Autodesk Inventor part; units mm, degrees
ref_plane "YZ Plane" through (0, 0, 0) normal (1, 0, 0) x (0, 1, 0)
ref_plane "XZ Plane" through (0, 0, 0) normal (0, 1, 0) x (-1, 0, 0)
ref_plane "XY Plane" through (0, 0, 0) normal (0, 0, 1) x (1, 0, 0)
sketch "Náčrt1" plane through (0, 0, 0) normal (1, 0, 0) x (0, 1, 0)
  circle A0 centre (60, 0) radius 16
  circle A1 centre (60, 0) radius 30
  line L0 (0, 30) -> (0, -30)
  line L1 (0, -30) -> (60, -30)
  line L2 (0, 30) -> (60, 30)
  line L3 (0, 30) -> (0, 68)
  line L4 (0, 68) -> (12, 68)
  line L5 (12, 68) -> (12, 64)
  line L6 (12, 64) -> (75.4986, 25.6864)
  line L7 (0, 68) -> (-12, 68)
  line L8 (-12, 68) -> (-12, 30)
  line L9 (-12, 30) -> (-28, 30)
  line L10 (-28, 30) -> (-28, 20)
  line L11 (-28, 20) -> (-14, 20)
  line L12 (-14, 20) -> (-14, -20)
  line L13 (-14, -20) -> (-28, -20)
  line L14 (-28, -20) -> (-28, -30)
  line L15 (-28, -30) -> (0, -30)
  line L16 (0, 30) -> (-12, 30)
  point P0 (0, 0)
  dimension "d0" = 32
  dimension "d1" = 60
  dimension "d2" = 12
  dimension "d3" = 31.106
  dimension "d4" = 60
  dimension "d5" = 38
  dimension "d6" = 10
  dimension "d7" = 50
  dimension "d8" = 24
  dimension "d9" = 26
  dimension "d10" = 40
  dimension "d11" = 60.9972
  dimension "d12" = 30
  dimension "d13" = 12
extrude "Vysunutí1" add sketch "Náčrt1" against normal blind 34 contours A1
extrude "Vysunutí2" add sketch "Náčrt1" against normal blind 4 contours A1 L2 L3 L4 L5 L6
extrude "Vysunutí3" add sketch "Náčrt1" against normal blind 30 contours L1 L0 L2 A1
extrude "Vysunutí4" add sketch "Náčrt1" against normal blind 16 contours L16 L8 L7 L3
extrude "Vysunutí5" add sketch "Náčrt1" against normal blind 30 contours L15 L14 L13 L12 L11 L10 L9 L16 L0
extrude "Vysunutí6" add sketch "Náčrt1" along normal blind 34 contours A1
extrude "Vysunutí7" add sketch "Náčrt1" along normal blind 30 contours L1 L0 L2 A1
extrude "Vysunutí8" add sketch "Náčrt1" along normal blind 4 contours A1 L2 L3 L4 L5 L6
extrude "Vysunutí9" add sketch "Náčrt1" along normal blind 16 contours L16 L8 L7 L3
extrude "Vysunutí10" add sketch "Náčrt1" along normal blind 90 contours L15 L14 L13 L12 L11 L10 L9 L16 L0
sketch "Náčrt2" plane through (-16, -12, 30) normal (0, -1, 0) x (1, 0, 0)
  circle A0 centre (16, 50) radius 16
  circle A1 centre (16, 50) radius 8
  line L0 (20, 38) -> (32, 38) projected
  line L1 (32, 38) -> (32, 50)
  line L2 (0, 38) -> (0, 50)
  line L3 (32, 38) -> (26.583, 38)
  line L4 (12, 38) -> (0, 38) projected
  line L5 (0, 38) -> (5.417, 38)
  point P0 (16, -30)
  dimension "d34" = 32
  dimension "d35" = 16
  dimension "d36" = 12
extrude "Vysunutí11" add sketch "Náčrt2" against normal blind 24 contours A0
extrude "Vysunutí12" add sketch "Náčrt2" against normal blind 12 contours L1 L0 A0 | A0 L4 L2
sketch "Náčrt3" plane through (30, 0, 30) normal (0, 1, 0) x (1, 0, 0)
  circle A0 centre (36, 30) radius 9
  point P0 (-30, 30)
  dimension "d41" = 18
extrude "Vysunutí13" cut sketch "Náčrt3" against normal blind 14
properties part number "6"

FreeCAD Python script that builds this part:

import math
import FreeCAD as App
import Part
import Sketcher
Q = App.Units.Quantity

doc = App.newDocument("Part")
params = doc.addObject("Spreadsheet::Sheet", "Params")
for row, (alias, value) in enumerate([
    ("sketch1_diameter", "60 mm"),
    ("sketch1_diameter2", "32 mm"),
    ("pad1_length", "34 mm"),
    ("sketch2_radius", "30 mm"),
    ("sketch2_width", "12 mm"),
    ("sketch2_width2", "60 mm"),
    ("sketch2_height", "38 mm"),
    ("sketch2_height2", "4 mm"),
    ("pad2_length", "4 mm"),
    ("sketch3_radius", "30 mm"),
    ("pad3_length", "30 mm"),
    ("sketch4_width", "12 mm"),
    ("sketch4_height", "38 mm"),
    ("pad4_length", "16 mm"),
    ("sketch5_height", "60 mm"),
    ("sketch5_height2", "10 mm"),
    ("sketch5_width", "28 mm"),
    ("sketch5_width2", "14 mm"),
    ("pad5_length", "30 mm"),
    ("sketch6_diameter", "60 mm"),
    ("sketch6_diameter2", "32 mm"),
    ("pad6_length", "34 mm"),
    ("sketch7_radius", "30 mm"),
    ("pad7_length", "30 mm"),
    ("sketch8_radius", "30 mm"),
    ("sketch8_width", "12 mm"),
    ("sketch8_width2", "60 mm"),
    ("sketch8_height", "38 mm"),
    ("sketch8_height2", "4 mm"),
    ("pad8_length", "4 mm"),
    ("sketch9_width", "12 mm"),
    ("sketch9_height", "38 mm"),
    ("pad9_length", "16 mm"),
    ("sketch10_height", "60 mm"),
    ("sketch10_height2", "10 mm"),
    ("sketch10_width", "28 mm"),
    ("sketch10_width2", "14 mm"),
    ("pad10_length", "90 mm"),
    ("sketch11_diameter", "32 mm"),
    ("sketch11_diameter2", "16 mm"),
    ("pad11_length", "24 mm"),
    ("sketch12_radius", "16 mm"),
    ("sketch12_height", "12 mm"),
    ("pad12_length", "12 mm"),
    ("sketch13_diameter", "18 mm"),
    ("pocket1_length", "14 mm"),
], start=1):
    params.set(f"A{row}", alias)
    params.set(f"B{row}", "=" + value)
    params.setAlias(f"B{row}", alias)

body = doc.addObject("PartDesign::Body", "Body")

sketch1 = body.newObject("Sketcher::SketchObject", "Sketch")
sketch1.AttachmentSupport = (doc.getObject("YZ_Plane"), [""])
sketch1.MapMode = "FlatFace"
sketch1.addGeometry([
    Part.Circle(App.Vector(60, 0, 0), App.Vector(0, 0, 1), 30),
    Part.Circle(App.Vector(60, 0, 0), App.Vector(0, 0, 1), 16),
], False)
sketch1.addConstraint([
    Sketcher.Constraint("Coincident", 1, 3, 0, 3),
    Sketcher.Constraint("PointOnObject", 0, 3, -1),
    Sketcher.Constraint("Diameter", 0, Q("60 mm")),
    Sketcher.Constraint("Diameter", 1, Q("32 mm")),
    Sketcher.Constraint("DistanceX", -1, 1, 0, 3, Q("60 mm")),
])
sketch1.setExpression("Constraints[2]", "Params.sketch1_diameter")
sketch1.setExpression("Constraints[3]", "Params.sketch1_diameter2")
pad1 = body.newObject("PartDesign::Pad", "Pad")
pad1.Profile = sketch1
pad1.setExpression("Length", "Params.pad1_length")
pad1.Reversed = True

sketch2 = body.newObject("Sketcher::SketchObject", "Sketch001")
sketch2.AttachmentSupport = (doc.getObject("YZ_Plane"), [""])
sketch2.MapMode = "FlatFace"
sketch2.addGeometry([
    Part.ArcOfCircle(Part.Circle(App.Vector(60, 0, 0), App.Vector(0, 0, 1), 30), math.radians(58.894157), math.radians(90)),
    Part.LineSegment(App.Vector(75.4986, 25.6864, 0), App.Vector(12, 64, 0)),
    Part.LineSegment(App.Vector(12, 64, 0), App.Vector(12, 68, 0)),
    Part.LineSegment(App.Vector(12, 68, 0), App.Vector(0, 68, 0)),
    Part.LineSegment(App.Vector(0, 68, 0), App.Vector(0, 30, 0)),
    Part.LineSegment(App.Vector(0, 30, 0), App.Vector(60, 30, 0)),
], False)
sketch2.addConstraint([
    Sketcher.Constraint("Tangent", 0, 1, 1, 1),
    Sketcher.Constraint("Coincident", 1, 2, 2, 1),
    Sketcher.Constraint("Coincident", 2, 2, 3, 1),
    Sketcher.Constraint("Coincident", 3, 2, 4, 1),
    Sketcher.Constraint("Coincident", 4, 2, 5, 1),
    Sketcher.Constraint("Tangent", 5, 2, 0, 2),
    Sketcher.Constraint("Vertical", 2),
    Sketcher.Constraint("Horizontal", 3),
    Sketcher.Constraint("Vertical", 4),
    Sketcher.Constraint("Horizontal", 5),
    Sketcher.Constraint("PointOnObject", 0, 3, -1),
    Sketcher.Constraint("PointOnObject", 3, 2, -2),
    Sketcher.Constraint("Radius", 0, Q("30 mm")),
    Sketcher.Constraint("DistanceX", 3, 2, 3, 1, Q("12 mm")),
    Sketcher.Constraint("DistanceX", 5, 1, 5, 2, Q("60 mm")),
    Sketcher.Constraint("DistanceY", 4, 2, 4, 1, Q("38 mm")),
    Sketcher.Constraint("DistanceY", 2, 1, 2, 2, Q("4 mm")),
])
sketch2.setExpression("Constraints[12]", "Params.sketch2_radius")
sketch2.setExpression("Constraints[13]", "Params.sketch2_width")
sketch2.setExpression("Constraints[14]", "Params.sketch2_width2")
sketch2.setExpression("Constraints[15]", "Params.sketch2_height")
sketch2.setExpression("Constraints[16]", "Params.sketch2_height2")
pad2 = body.newObject("PartDesign::Pad", "Pad001")
pad2.Profile = sketch2
pad2.setExpression("Length", "Params.pad2_length")
pad2.Reversed = True

sketch3 = body.newObject("Sketcher::SketchObject", "Sketch002")
sketch3.AttachmentSupport = (doc.getObject("YZ_Plane"), [""])
sketch3.MapMode = "FlatFace"
sketch3.addGeometry([
    Part.LineSegment(App.Vector(0, -30, 0), App.Vector(60, -30, 0)),
    Part.ArcOfCircle(Part.Circle(App.Vector(60, 0, 0), App.Vector(0, 0, 1), 30), math.radians(90), math.radians(270)),
    Part.LineSegment(App.Vector(60, 30, 0), App.Vector(0, 30, 0)),
    Part.LineSegment(App.Vector(0, 30, 0), App.Vector(0, -30, 0)),
], False)
sketch3.addConstraint([
    Sketcher.Constraint("Tangent", 0, 2, 1, 2),
    Sketcher.Constraint("Tangent", 1, 1, 2, 1),
    Sketcher.Constraint("Coincident", 2, 2, 3, 1),
    Sketcher.Constraint("Coincident", 3, 2, 0, 1),
    Sketcher.Constraint("Horizontal", 0),
    Sketcher.Constraint("Horizontal", 2),
    Sketcher.Constraint("Vertical", 3),
    Sketcher.Constraint("Symmetric", 2, 2, 3, 2, -1, 1),
    Sketcher.Constraint("Equal", 2, 3),
    Sketcher.Constraint("Radius", 1, Q("30 mm")),
])
sketch3.setExpression("Constraints[9]", "Params.sketch3_radius")
pad3 = body.newObject("PartDesign::Pad", "Pad002")
pad3.Profile = sketch3
pad3.setExpression("Length", "Params.pad3_length")
pad3.Reversed = True

sketch4 = body.newObject("Sketcher::SketchObject", "Sketch003")
sketch4.AttachmentSupport = (doc.getObject("YZ_Plane"), [""])
sketch4.MapMode = "FlatFace"
sketch4.addGeometry([
    Part.LineSegment(App.Vector(-12, 30, 0), App.Vector(0, 30, 0)),
    Part.LineSegment(App.Vector(0, 30, 0), App.Vector(0, 68, 0)),
    Part.LineSegment(App.Vector(0, 68, 0), App.Vector(-12, 68, 0)),
    Part.LineSegment(App.Vector(-12, 68, 0), App.Vector(-12, 30, 0)),
], False)
sketch4.addConstraint([
    Sketcher.Constraint("Coincident", 0, 2, 1, 1),
    Sketcher.Constraint("Coincident", 1, 2, 2, 1),
    Sketcher.Constraint("Coincident", 2, 2, 3, 1),
    Sketcher.Constraint("Coincident", 3, 2, 0, 1),
    Sketcher.Constraint("Horizontal", 0),
    Sketcher.Constraint("Vertical", 1),
    Sketcher.Constraint("Horizontal", 2),
    Sketcher.Constraint("Vertical", 3),
    Sketcher.Constraint("PointOnObject", 0, 2, -2),
    Sketcher.Constraint("DistanceX", 0, 1, 0, 2, Q("12 mm")),
    Sketcher.Constraint("DistanceY", 1, 1, 1, 2, Q("38 mm")),
    Sketcher.Constraint("DistanceY", -1, 1, 0, 2, Q("30 mm")),
])
sketch4.setExpression("Constraints[9]", "Params.sketch4_width")
sketch4.setExpression("Constraints[10]", "Params.sketch4_height")
pad4 = body.newObject("PartDesign::Pad", "Pad003")
pad4.Profile = sketch4
pad4.setExpression("Length", "Params.pad4_length")
pad4.Reversed = True

sketch5 = body.newObject("Sketcher::SketchObject", "Sketch004")
sketch5.AttachmentSupport = (doc.getObject("YZ_Plane"), [""])
sketch5.MapMode = "FlatFace"
sketch5.addGeometry([
    Part.LineSegment(App.Vector(-28, -30, 0), App.Vector(0, -30, 0)),
    Part.LineSegment(App.Vector(0, -30, 0), App.Vector(0, 30, 0)),
    Part.LineSegment(App.Vector(0, 30, 0), App.Vector(-28, 30, 0)),
    Part.LineSegment(App.Vector(-28, 30, 0), App.Vector(-28, 20, 0)),
    Part.LineSegment(App.Vector(-28, 20, 0), App.Vector(-14, 20, 0)),
    Part.LineSegment(App.Vector(-14, 20, 0), App.Vector(-14, -20, 0)),
    Part.LineSegment(App.Vector(-14, -20, 0), App.Vector(-28, -20, 0)),
    Part.LineSegment(App.Vector(-28, -20, 0), App.Vector(-28, -30, 0)),
], False)
sketch5.addConstraint([
    Sketcher.Constraint("Coincident", 0, 2, 1, 1),
    Sketcher.Constraint("Coincident", 1, 2, 2, 1),
    Sketcher.Constraint("Coincident", 2, 2, 3, 1),
    Sketcher.Constraint("Coincident", 3, 2, 4, 1),
    Sketcher.Constraint("Coincident", 4, 2, 5, 1),
    Sketcher.Constraint("Coincident", 5, 2, 6, 1),
    Sketcher.Constraint("Coincident", 6, 2, 7, 1),
    Sketcher.Constraint("Coincident", 7, 2, 0, 1),
    Sketcher.Constraint("Horizontal", 0),
    Sketcher.Constraint("Vertical", 1),
    Sketcher.Constraint("Horizontal", 2),
    Sketcher.Constraint("Vertical", 3),
    Sketcher.Constraint("Horizontal", 4),
    Sketcher.Constraint("Vertical", 5),
    Sketcher.Constraint("Horizontal", 6),
    Sketcher.Constraint("Vertical", 7),
    Sketcher.Constraint("Symmetric", 0, 2, 1, 2, -1, 1),
    Sketcher.Constraint("Symmetric", 3, 2, 6, 2, -1),
    Sketcher.Constraint("DistanceY", 1, 1, 1, 2, Q("60 mm")),
    Sketcher.Constraint("DistanceY", 3, 2, 3, 1, Q("10 mm")),
    Sketcher.Constraint("DistanceX", 0, 1, 0, 2, Q("28 mm")),
    Sketcher.Constraint("DistanceX", 4, 1, 4, 2, Q("14 mm")),
])
sketch5.setExpression("Constraints[18]", "Params.sketch5_height")
sketch5.setExpression("Constraints[19]", "Params.sketch5_height2")
sketch5.setExpression("Constraints[20]", "Params.sketch5_width")
sketch5.setExpression("Constraints[21]", "Params.sketch5_width2")
pad5 = body.newObject("PartDesign::Pad", "Pad004")
pad5.Profile = sketch5
pad5.setExpression("Length", "Params.pad5_length")
pad5.Reversed = True

sketch6 = body.newObject("Sketcher::SketchObject", "Sketch005")
sketch6.AttachmentSupport = (doc.getObject("YZ_Plane"), [""])
sketch6.MapMode = "FlatFace"
sketch6.addGeometry([
    Part.Circle(App.Vector(60, 0, 0), App.Vector(0, 0, 1), 30),
    Part.Circle(App.Vector(60, 0, 0), App.Vector(0, 0, 1), 16),
], False)
sketch6.addConstraint([
    Sketcher.Constraint("Coincident", 1, 3, 0, 3),
    Sketcher.Constraint("PointOnObject", 0, 3, -1),
    Sketcher.Constraint("Diameter", 0, Q("60 mm")),
    Sketcher.Constraint("Diameter", 1, Q("32 mm")),
    Sketcher.Constraint("DistanceX", -1, 1, 0, 3, Q("60 mm")),
])
sketch6.setExpression("Constraints[2]", "Params.sketch6_diameter")
sketch6.setExpression("Constraints[3]", "Params.sketch6_diameter2")
pad6 = body.newObject("PartDesign::Pad", "Pad005")
pad6.Profile = sketch6
pad6.setExpression("Length", "Params.pad6_length")

sketch7 = body.newObject("Sketcher::SketchObject", "Sketch006")
sketch7.AttachmentSupport = (doc.getObject("YZ_Plane"), [""])
sketch7.MapMode = "FlatFace"
sketch7.addGeometry([
    Part.LineSegment(App.Vector(0, -30, 0), App.Vector(60, -30, 0)),
    Part.ArcOfCircle(Part.Circle(App.Vector(60, 0, 0), App.Vector(0, 0, 1), 30), math.radians(90), math.radians(270)),
    Part.LineSegment(App.Vector(60, 30, 0), App.Vector(0, 30, 0)),
    Part.LineSegment(App.Vector(0, 30, 0), App.Vector(0, -30, 0)),
], False)
sketch7.addConstraint([
    Sketcher.Constraint("Tangent", 0, 2, 1, 2),
    Sketcher.Constraint("Tangent", 1, 1, 2, 1),
    Sketcher.Constraint("Coincident", 2, 2, 3, 1),
    Sketcher.Constraint("Coincident", 3, 2, 0, 1),
    Sketcher.Constraint("Horizontal", 0),
    Sketcher.Constraint("Horizontal", 2),
    Sketcher.Constraint("Vertical", 3),
    Sketcher.Constraint("Symmetric", 2, 2, 3, 2, -1, 1),
    Sketcher.Constraint("Equal", 2, 3),
    Sketcher.Constraint("Radius", 1, Q("30 mm")),
])
sketch7.setExpression("Constraints[9]", "Params.sketch7_radius")
pad7 = body.newObject("PartDesign::Pad", "Pad006")
pad7.Profile = sketch7
pad7.setExpression("Length", "Params.pad7_length")

sketch8 = body.newObject("Sketcher::SketchObject", "Sketch007")
sketch8.AttachmentSupport = (doc.getObject("YZ_Plane"), [""])
sketch8.MapMode = "FlatFace"
sketch8.addGeometry([
    Part.ArcOfCircle(Part.Circle(App.Vector(60, 0, 0), App.Vector(0, 0, 1), 30), math.radians(58.894157), math.radians(90)),
    Part.LineSegment(App.Vector(75.4986, 25.6864, 0), App.Vector(12, 64, 0)),
    Part.LineSegment(App.Vector(12, 64, 0), App.Vector(12, 68, 0)),
    Part.LineSegment(App.Vector(12, 68, 0), App.Vector(0, 68, 0)),
    Part.LineSegment(App.Vector(0, 68, 0), App.Vector(0, 30, 0)),
    Part.LineSegment(App.Vector(0, 30, 0), App.Vector(60, 30, 0)),
], False)
sketch8.addConstraint([
    Sketcher.Constraint("Tangent", 0, 1, 1, 1),
    Sketcher.Constraint("Coincident", 1, 2, 2, 1),
    Sketcher.Constraint("Coincident", 2, 2, 3, 1),
    Sketcher.Constraint("Coincident", 3, 2, 4, 1),
    Sketcher.Constraint("Coincident", 4, 2, 5, 1),
    Sketcher.Constraint("Tangent", 5, 2, 0, 2),
    Sketcher.Constraint("Vertical", 2),
    Sketcher.Constraint("Horizontal", 3),
    Sketcher.Constraint("Vertical", 4),
    Sketcher.Constraint("Horizontal", 5),
    Sketcher.Constraint("PointOnObject", 0, 3, -1),
    Sketcher.Constraint("PointOnObject", 3, 2, -2),
    Sketcher.Constraint("Radius", 0, Q("30 mm")),
    Sketcher.Constraint("DistanceX", 3, 2, 3, 1, Q("12 mm")),
    Sketcher.Constraint("DistanceX", 5, 1, 5, 2, Q("60 mm")),
    Sketcher.Constraint("DistanceY", 4, 2, 4, 1, Q("38 mm")),
    Sketcher.Constraint("DistanceY", 2, 1, 2, 2, Q("4 mm")),
])
sketch8.setExpression("Constraints[12]", "Params.sketch8_radius")
sketch8.setExpression("Constraints[13]", "Params.sketch8_width")
sketch8.setExpression("Constraints[14]", "Params.sketch8_width2")
sketch8.setExpression("Constraints[15]", "Params.sketch8_height")
sketch8.setExpression("Constraints[16]", "Params.sketch8_height2")
pad8 = body.newObject("PartDesign::Pad", "Pad007")
pad8.Profile = sketch8
pad8.setExpression("Length", "Params.pad8_length")

sketch9 = body.newObject("Sketcher::SketchObject", "Sketch008")
sketch9.AttachmentSupport = (doc.getObject("YZ_Plane"), [""])
sketch9.MapMode = "FlatFace"
sketch9.addGeometry([
    Part.LineSegment(App.Vector(-12, 30, 0), App.Vector(0, 30, 0)),
    Part.LineSegment(App.Vector(0, 30, 0), App.Vector(0, 68, 0)),
    Part.LineSegment(App.Vector(0, 68, 0), App.Vector(-12, 68, 0)),
    Part.LineSegment(App.Vector(-12, 68, 0), App.Vector(-12, 30, 0)),
], False)
sketch9.addConstraint([
    Sketcher.Constraint("Coincident", 0, 2, 1, 1),
    Sketcher.Constraint("Coincident", 1, 2, 2, 1),
    Sketcher.Constraint("Coincident", 2, 2, 3, 1),
    Sketcher.Constraint("Coincident", 3, 2, 0, 1),
    Sketcher.Constraint("Horizontal", 0),
    Sketcher.Constraint("Vertical", 1),
    Sketcher.Constraint("Horizontal", 2),
    Sketcher.Constraint("Vertical", 3),
    Sketcher.Constraint("PointOnObject", 0, 2, -2),
    Sketcher.Constraint("DistanceX", 0, 1, 0, 2, Q("12 mm")),
    Sketcher.Constraint("DistanceY", 1, 1, 1, 2, Q("38 mm")),
    Sketcher.Constraint("DistanceY", -1, 1, 0, 2, Q("30 mm")),
])
sketch9.setExpression("Constraints[9]", "Params.sketch9_width")
sketch9.setExpression("Constraints[10]", "Params.sketch9_height")
pad9 = body.newObject("PartDesign::Pad", "Pad008")
pad9.Profile = sketch9
pad9.setExpression("Length", "Params.pad9_length")

sketch10 = body.newObject("Sketcher::SketchObject", "Sketch009")
sketch10.AttachmentSupport = (doc.getObject("YZ_Plane"), [""])
sketch10.MapMode = "FlatFace"
sketch10.addGeometry([
    Part.LineSegment(App.Vector(-28, -30, 0), App.Vector(0, -30, 0)),
    Part.LineSegment(App.Vector(0, -30, 0), App.Vector(0, 30, 0)),
    Part.LineSegment(App.Vector(0, 30, 0), App.Vector(-28, 30, 0)),
    Part.LineSegment(App.Vector(-28, 30, 0), App.Vector(-28, 20, 0)),
    Part.LineSegment(App.Vector(-28, 20, 0), App.Vector(-14, 20, 0)),
    Part.LineSegment(App.Vector(-14, 20, 0), App.Vector(-14, -20, 0)),
    Part.LineSegment(App.Vector(-14, -20, 0), App.Vector(-28, -20, 0)),
    Part.LineSegment(App.Vector(-28, -20, 0), App.Vector(-28, -30, 0)),
], False)
sketch10.addConstraint([
    Sketcher.Constraint("Coincident", 0, 2, 1, 1),
    Sketcher.Constraint("Coincident", 1, 2, 2, 1),
    Sketcher.Constraint("Coincident", 2, 2, 3, 1),
    Sketcher.Constraint("Coincident", 3, 2, 4, 1),
    Sketcher.Constraint("Coincident", 4, 2, 5, 1),
    Sketcher.Constraint("Coincident", 5, 2, 6, 1),
    Sketcher.Constraint("Coincident", 6, 2, 7, 1),
    Sketcher.Constraint("Coincident", 7, 2, 0, 1),
    Sketcher.Constraint("Horizontal", 0),
    Sketcher.Constraint("Vertical", 1),
    Sketcher.Constraint("Horizontal", 2),
    Sketcher.Constraint("Vertical", 3),
    Sketcher.Constraint("Horizontal", 4),
    Sketcher.Constraint("Vertical", 5),
    Sketcher.Constraint("Horizontal", 6),
    Sketcher.Constraint("Vertical", 7),
    Sketcher.Constraint("Symmetric", 0, 2, 1, 2, -1, 1),
    Sketcher.Constraint("Symmetric", 3, 2, 6, 2, -1),
    Sketcher.Constraint("DistanceY", 1, 1, 1, 2, Q("60 mm")),
    Sketcher.Constraint("DistanceY", 3, 2, 3, 1, Q("10 mm")),
    Sketcher.Constraint("DistanceX", 0, 1, 0, 2, Q("28 mm")),
    Sketcher.Constraint("DistanceX", 4, 1, 4, 2, Q("14 mm")),
])
sketch10.setExpression("Constraints[18]", "Params.sketch10_height")
sketch10.setExpression("Constraints[19]", "Params.sketch10_height2")
sketch10.setExpression("Constraints[20]", "Params.sketch10_width")
sketch10.setExpression("Constraints[21]", "Params.sketch10_width2")
pad10 = body.newObject("PartDesign::Pad", "Pad009")
pad10.Profile = sketch10
pad10.setExpression("Length", "Params.pad10_length")

sketch11 = body.newObject("Sketcher::SketchObject", "Sketch010")
sketch11.AttachmentSupport = (doc.getObject("XZ_Plane"), [""])
sketch11.MapMode = "FlatFace"
sketch11.AttachmentOffset = App.Placement(App.Vector(0, 0, 12), App.Rotation())
sketch11.addGeometry([
    Part.Circle(App.Vector(0, 80, 0), App.Vector(0, 0, 1), 16),
    Part.Circle(App.Vector(0, 80, 0), App.Vector(0, 0, 1), 8),
], False)
sketch11.addConstraint([
    Sketcher.Constraint("Coincident", 1, 3, 0, 3),
    Sketcher.Constraint("PointOnObject", 0, 3, -2),
    Sketcher.Constraint("Diameter", 0, Q("32 mm")),
    Sketcher.Constraint("Diameter", 1, Q("16 mm")),
    Sketcher.Constraint("DistanceY", -1, 1, 0, 3, Q("80 mm")),
])
sketch11.setExpression("Constraints[2]", "Params.sketch11_diameter")
sketch11.setExpression("Constraints[3]", "Params.sketch11_diameter2")
pad11 = body.newObject("PartDesign::Pad", "Pad010")
pad11.Profile = sketch11
pad11.setExpression("Length", "Params.pad11_length")
pad11.Reversed = True

sketch12 = body.newObject("Sketcher::SketchObject", "Sketch011")
sketch12.AttachmentSupport = (doc.getObject("XZ_Plane"), [""])
sketch12.MapMode = "FlatFace"
sketch12.AttachmentOffset = App.Placement(App.Vector(0, 0, 12), App.Rotation())
sketch12.addGeometry([
    Part.LineSegment(App.Vector(16, 68, 0), App.Vector(16, 80, 0)),
    Part.ArcOfCircle(Part.Circle(App.Vector(0, 80, 0), App.Vector(0, 0, 1), 16), math.radians(-48.590392), math.radians(0)),
    Part.LineSegment(App.Vector(10.583, 68, 0), App.Vector(16, 68, 0)),
    Part.ArcOfCircle(Part.Circle(App.Vector(0, 80, 0), App.Vector(0, 0, 1), 16), math.radians(180), math.radians(228.590392)),
    Part.LineSegment(App.Vector(-16, 80, 0), App.Vector(-16, 68, 0)),
    Part.LineSegment(App.Vector(-16, 68, 0), App.Vector(-10.583, 68, 0)),
], False)
sketch12.addConstraint([
    Sketcher.Constraint("Tangent", 0, 2, 1, 2),
    Sketcher.Constraint("Coincident", 1, 1, 2, 1),
    Sketcher.Constraint("Coincident", 2, 2, 0, 1),
    Sketcher.Constraint("Tangent", 3, 1, 4, 1),
    Sketcher.Constraint("Coincident", 4, 2, 5, 1),
    Sketcher.Constraint("Coincident", 5, 2, 3, 2),
    Sketcher.Constraint("Vertical", 0),
    Sketcher.Constraint("Horizontal", 2),
    Sketcher.Constraint("Vertical", 4),
    Sketcher.Constraint("Horizontal", 5),
    Sketcher.Constraint("Coincident", 3, 3, 1, 3),
    Sketcher.Constraint("Equal", 1, 3),
    Sketcher.Constraint("Symmetric", 2, 2, 4, 2, -2),
    Sketcher.Constraint("Radius", 1, Q("16 mm")),
    Sketcher.Constraint("DistanceY", 0, 1, 0, 2, Q("12 mm")),
    Sketcher.Constraint("DistanceY", -1, 1, 1, 3, Q("80 mm")),
])
sketch12.setExpression("Constraints[13]", "Params.sketch12_radius")
sketch12.setExpression("Constraints[14]", "Params.sketch12_height")
pad12 = body.newObject("PartDesign::Pad", "Pad011")
pad12.Profile = sketch12
pad12.setExpression("Length", "Params.pad12_length")
pad12.Reversed = True

sketch13 = body.newObject("Sketcher::SketchObject", "Sketch012")
sketch13.AttachmentSupport = (doc.getObject("XZ_Plane"), [""])
sketch13.MapMode = "FlatFace"
sketch13.addGeometry(Part.Circle(App.Vector(66, 0, 0), App.Vector(0, 0, 1), 9), False)
sketch13.addConstraint([
    Sketcher.Constraint("PointOnObject", 0, 3, -1),
    Sketcher.Constraint("Diameter", 0, Q("18 mm")),
    Sketcher.Constraint("DistanceX", -1, 1, 0, 3, Q("66 mm")),
])
sketch13.setExpression("Constraints[1]", "Params.sketch13_diameter")
pocket1 = body.newObject("PartDesign::Pocket", "Pocket")
pocket1.Profile = sketch13
pocket1.setExpression("Length", "Params.pocket1_length")
pocket1.Reversed = True

doc.recompute()
